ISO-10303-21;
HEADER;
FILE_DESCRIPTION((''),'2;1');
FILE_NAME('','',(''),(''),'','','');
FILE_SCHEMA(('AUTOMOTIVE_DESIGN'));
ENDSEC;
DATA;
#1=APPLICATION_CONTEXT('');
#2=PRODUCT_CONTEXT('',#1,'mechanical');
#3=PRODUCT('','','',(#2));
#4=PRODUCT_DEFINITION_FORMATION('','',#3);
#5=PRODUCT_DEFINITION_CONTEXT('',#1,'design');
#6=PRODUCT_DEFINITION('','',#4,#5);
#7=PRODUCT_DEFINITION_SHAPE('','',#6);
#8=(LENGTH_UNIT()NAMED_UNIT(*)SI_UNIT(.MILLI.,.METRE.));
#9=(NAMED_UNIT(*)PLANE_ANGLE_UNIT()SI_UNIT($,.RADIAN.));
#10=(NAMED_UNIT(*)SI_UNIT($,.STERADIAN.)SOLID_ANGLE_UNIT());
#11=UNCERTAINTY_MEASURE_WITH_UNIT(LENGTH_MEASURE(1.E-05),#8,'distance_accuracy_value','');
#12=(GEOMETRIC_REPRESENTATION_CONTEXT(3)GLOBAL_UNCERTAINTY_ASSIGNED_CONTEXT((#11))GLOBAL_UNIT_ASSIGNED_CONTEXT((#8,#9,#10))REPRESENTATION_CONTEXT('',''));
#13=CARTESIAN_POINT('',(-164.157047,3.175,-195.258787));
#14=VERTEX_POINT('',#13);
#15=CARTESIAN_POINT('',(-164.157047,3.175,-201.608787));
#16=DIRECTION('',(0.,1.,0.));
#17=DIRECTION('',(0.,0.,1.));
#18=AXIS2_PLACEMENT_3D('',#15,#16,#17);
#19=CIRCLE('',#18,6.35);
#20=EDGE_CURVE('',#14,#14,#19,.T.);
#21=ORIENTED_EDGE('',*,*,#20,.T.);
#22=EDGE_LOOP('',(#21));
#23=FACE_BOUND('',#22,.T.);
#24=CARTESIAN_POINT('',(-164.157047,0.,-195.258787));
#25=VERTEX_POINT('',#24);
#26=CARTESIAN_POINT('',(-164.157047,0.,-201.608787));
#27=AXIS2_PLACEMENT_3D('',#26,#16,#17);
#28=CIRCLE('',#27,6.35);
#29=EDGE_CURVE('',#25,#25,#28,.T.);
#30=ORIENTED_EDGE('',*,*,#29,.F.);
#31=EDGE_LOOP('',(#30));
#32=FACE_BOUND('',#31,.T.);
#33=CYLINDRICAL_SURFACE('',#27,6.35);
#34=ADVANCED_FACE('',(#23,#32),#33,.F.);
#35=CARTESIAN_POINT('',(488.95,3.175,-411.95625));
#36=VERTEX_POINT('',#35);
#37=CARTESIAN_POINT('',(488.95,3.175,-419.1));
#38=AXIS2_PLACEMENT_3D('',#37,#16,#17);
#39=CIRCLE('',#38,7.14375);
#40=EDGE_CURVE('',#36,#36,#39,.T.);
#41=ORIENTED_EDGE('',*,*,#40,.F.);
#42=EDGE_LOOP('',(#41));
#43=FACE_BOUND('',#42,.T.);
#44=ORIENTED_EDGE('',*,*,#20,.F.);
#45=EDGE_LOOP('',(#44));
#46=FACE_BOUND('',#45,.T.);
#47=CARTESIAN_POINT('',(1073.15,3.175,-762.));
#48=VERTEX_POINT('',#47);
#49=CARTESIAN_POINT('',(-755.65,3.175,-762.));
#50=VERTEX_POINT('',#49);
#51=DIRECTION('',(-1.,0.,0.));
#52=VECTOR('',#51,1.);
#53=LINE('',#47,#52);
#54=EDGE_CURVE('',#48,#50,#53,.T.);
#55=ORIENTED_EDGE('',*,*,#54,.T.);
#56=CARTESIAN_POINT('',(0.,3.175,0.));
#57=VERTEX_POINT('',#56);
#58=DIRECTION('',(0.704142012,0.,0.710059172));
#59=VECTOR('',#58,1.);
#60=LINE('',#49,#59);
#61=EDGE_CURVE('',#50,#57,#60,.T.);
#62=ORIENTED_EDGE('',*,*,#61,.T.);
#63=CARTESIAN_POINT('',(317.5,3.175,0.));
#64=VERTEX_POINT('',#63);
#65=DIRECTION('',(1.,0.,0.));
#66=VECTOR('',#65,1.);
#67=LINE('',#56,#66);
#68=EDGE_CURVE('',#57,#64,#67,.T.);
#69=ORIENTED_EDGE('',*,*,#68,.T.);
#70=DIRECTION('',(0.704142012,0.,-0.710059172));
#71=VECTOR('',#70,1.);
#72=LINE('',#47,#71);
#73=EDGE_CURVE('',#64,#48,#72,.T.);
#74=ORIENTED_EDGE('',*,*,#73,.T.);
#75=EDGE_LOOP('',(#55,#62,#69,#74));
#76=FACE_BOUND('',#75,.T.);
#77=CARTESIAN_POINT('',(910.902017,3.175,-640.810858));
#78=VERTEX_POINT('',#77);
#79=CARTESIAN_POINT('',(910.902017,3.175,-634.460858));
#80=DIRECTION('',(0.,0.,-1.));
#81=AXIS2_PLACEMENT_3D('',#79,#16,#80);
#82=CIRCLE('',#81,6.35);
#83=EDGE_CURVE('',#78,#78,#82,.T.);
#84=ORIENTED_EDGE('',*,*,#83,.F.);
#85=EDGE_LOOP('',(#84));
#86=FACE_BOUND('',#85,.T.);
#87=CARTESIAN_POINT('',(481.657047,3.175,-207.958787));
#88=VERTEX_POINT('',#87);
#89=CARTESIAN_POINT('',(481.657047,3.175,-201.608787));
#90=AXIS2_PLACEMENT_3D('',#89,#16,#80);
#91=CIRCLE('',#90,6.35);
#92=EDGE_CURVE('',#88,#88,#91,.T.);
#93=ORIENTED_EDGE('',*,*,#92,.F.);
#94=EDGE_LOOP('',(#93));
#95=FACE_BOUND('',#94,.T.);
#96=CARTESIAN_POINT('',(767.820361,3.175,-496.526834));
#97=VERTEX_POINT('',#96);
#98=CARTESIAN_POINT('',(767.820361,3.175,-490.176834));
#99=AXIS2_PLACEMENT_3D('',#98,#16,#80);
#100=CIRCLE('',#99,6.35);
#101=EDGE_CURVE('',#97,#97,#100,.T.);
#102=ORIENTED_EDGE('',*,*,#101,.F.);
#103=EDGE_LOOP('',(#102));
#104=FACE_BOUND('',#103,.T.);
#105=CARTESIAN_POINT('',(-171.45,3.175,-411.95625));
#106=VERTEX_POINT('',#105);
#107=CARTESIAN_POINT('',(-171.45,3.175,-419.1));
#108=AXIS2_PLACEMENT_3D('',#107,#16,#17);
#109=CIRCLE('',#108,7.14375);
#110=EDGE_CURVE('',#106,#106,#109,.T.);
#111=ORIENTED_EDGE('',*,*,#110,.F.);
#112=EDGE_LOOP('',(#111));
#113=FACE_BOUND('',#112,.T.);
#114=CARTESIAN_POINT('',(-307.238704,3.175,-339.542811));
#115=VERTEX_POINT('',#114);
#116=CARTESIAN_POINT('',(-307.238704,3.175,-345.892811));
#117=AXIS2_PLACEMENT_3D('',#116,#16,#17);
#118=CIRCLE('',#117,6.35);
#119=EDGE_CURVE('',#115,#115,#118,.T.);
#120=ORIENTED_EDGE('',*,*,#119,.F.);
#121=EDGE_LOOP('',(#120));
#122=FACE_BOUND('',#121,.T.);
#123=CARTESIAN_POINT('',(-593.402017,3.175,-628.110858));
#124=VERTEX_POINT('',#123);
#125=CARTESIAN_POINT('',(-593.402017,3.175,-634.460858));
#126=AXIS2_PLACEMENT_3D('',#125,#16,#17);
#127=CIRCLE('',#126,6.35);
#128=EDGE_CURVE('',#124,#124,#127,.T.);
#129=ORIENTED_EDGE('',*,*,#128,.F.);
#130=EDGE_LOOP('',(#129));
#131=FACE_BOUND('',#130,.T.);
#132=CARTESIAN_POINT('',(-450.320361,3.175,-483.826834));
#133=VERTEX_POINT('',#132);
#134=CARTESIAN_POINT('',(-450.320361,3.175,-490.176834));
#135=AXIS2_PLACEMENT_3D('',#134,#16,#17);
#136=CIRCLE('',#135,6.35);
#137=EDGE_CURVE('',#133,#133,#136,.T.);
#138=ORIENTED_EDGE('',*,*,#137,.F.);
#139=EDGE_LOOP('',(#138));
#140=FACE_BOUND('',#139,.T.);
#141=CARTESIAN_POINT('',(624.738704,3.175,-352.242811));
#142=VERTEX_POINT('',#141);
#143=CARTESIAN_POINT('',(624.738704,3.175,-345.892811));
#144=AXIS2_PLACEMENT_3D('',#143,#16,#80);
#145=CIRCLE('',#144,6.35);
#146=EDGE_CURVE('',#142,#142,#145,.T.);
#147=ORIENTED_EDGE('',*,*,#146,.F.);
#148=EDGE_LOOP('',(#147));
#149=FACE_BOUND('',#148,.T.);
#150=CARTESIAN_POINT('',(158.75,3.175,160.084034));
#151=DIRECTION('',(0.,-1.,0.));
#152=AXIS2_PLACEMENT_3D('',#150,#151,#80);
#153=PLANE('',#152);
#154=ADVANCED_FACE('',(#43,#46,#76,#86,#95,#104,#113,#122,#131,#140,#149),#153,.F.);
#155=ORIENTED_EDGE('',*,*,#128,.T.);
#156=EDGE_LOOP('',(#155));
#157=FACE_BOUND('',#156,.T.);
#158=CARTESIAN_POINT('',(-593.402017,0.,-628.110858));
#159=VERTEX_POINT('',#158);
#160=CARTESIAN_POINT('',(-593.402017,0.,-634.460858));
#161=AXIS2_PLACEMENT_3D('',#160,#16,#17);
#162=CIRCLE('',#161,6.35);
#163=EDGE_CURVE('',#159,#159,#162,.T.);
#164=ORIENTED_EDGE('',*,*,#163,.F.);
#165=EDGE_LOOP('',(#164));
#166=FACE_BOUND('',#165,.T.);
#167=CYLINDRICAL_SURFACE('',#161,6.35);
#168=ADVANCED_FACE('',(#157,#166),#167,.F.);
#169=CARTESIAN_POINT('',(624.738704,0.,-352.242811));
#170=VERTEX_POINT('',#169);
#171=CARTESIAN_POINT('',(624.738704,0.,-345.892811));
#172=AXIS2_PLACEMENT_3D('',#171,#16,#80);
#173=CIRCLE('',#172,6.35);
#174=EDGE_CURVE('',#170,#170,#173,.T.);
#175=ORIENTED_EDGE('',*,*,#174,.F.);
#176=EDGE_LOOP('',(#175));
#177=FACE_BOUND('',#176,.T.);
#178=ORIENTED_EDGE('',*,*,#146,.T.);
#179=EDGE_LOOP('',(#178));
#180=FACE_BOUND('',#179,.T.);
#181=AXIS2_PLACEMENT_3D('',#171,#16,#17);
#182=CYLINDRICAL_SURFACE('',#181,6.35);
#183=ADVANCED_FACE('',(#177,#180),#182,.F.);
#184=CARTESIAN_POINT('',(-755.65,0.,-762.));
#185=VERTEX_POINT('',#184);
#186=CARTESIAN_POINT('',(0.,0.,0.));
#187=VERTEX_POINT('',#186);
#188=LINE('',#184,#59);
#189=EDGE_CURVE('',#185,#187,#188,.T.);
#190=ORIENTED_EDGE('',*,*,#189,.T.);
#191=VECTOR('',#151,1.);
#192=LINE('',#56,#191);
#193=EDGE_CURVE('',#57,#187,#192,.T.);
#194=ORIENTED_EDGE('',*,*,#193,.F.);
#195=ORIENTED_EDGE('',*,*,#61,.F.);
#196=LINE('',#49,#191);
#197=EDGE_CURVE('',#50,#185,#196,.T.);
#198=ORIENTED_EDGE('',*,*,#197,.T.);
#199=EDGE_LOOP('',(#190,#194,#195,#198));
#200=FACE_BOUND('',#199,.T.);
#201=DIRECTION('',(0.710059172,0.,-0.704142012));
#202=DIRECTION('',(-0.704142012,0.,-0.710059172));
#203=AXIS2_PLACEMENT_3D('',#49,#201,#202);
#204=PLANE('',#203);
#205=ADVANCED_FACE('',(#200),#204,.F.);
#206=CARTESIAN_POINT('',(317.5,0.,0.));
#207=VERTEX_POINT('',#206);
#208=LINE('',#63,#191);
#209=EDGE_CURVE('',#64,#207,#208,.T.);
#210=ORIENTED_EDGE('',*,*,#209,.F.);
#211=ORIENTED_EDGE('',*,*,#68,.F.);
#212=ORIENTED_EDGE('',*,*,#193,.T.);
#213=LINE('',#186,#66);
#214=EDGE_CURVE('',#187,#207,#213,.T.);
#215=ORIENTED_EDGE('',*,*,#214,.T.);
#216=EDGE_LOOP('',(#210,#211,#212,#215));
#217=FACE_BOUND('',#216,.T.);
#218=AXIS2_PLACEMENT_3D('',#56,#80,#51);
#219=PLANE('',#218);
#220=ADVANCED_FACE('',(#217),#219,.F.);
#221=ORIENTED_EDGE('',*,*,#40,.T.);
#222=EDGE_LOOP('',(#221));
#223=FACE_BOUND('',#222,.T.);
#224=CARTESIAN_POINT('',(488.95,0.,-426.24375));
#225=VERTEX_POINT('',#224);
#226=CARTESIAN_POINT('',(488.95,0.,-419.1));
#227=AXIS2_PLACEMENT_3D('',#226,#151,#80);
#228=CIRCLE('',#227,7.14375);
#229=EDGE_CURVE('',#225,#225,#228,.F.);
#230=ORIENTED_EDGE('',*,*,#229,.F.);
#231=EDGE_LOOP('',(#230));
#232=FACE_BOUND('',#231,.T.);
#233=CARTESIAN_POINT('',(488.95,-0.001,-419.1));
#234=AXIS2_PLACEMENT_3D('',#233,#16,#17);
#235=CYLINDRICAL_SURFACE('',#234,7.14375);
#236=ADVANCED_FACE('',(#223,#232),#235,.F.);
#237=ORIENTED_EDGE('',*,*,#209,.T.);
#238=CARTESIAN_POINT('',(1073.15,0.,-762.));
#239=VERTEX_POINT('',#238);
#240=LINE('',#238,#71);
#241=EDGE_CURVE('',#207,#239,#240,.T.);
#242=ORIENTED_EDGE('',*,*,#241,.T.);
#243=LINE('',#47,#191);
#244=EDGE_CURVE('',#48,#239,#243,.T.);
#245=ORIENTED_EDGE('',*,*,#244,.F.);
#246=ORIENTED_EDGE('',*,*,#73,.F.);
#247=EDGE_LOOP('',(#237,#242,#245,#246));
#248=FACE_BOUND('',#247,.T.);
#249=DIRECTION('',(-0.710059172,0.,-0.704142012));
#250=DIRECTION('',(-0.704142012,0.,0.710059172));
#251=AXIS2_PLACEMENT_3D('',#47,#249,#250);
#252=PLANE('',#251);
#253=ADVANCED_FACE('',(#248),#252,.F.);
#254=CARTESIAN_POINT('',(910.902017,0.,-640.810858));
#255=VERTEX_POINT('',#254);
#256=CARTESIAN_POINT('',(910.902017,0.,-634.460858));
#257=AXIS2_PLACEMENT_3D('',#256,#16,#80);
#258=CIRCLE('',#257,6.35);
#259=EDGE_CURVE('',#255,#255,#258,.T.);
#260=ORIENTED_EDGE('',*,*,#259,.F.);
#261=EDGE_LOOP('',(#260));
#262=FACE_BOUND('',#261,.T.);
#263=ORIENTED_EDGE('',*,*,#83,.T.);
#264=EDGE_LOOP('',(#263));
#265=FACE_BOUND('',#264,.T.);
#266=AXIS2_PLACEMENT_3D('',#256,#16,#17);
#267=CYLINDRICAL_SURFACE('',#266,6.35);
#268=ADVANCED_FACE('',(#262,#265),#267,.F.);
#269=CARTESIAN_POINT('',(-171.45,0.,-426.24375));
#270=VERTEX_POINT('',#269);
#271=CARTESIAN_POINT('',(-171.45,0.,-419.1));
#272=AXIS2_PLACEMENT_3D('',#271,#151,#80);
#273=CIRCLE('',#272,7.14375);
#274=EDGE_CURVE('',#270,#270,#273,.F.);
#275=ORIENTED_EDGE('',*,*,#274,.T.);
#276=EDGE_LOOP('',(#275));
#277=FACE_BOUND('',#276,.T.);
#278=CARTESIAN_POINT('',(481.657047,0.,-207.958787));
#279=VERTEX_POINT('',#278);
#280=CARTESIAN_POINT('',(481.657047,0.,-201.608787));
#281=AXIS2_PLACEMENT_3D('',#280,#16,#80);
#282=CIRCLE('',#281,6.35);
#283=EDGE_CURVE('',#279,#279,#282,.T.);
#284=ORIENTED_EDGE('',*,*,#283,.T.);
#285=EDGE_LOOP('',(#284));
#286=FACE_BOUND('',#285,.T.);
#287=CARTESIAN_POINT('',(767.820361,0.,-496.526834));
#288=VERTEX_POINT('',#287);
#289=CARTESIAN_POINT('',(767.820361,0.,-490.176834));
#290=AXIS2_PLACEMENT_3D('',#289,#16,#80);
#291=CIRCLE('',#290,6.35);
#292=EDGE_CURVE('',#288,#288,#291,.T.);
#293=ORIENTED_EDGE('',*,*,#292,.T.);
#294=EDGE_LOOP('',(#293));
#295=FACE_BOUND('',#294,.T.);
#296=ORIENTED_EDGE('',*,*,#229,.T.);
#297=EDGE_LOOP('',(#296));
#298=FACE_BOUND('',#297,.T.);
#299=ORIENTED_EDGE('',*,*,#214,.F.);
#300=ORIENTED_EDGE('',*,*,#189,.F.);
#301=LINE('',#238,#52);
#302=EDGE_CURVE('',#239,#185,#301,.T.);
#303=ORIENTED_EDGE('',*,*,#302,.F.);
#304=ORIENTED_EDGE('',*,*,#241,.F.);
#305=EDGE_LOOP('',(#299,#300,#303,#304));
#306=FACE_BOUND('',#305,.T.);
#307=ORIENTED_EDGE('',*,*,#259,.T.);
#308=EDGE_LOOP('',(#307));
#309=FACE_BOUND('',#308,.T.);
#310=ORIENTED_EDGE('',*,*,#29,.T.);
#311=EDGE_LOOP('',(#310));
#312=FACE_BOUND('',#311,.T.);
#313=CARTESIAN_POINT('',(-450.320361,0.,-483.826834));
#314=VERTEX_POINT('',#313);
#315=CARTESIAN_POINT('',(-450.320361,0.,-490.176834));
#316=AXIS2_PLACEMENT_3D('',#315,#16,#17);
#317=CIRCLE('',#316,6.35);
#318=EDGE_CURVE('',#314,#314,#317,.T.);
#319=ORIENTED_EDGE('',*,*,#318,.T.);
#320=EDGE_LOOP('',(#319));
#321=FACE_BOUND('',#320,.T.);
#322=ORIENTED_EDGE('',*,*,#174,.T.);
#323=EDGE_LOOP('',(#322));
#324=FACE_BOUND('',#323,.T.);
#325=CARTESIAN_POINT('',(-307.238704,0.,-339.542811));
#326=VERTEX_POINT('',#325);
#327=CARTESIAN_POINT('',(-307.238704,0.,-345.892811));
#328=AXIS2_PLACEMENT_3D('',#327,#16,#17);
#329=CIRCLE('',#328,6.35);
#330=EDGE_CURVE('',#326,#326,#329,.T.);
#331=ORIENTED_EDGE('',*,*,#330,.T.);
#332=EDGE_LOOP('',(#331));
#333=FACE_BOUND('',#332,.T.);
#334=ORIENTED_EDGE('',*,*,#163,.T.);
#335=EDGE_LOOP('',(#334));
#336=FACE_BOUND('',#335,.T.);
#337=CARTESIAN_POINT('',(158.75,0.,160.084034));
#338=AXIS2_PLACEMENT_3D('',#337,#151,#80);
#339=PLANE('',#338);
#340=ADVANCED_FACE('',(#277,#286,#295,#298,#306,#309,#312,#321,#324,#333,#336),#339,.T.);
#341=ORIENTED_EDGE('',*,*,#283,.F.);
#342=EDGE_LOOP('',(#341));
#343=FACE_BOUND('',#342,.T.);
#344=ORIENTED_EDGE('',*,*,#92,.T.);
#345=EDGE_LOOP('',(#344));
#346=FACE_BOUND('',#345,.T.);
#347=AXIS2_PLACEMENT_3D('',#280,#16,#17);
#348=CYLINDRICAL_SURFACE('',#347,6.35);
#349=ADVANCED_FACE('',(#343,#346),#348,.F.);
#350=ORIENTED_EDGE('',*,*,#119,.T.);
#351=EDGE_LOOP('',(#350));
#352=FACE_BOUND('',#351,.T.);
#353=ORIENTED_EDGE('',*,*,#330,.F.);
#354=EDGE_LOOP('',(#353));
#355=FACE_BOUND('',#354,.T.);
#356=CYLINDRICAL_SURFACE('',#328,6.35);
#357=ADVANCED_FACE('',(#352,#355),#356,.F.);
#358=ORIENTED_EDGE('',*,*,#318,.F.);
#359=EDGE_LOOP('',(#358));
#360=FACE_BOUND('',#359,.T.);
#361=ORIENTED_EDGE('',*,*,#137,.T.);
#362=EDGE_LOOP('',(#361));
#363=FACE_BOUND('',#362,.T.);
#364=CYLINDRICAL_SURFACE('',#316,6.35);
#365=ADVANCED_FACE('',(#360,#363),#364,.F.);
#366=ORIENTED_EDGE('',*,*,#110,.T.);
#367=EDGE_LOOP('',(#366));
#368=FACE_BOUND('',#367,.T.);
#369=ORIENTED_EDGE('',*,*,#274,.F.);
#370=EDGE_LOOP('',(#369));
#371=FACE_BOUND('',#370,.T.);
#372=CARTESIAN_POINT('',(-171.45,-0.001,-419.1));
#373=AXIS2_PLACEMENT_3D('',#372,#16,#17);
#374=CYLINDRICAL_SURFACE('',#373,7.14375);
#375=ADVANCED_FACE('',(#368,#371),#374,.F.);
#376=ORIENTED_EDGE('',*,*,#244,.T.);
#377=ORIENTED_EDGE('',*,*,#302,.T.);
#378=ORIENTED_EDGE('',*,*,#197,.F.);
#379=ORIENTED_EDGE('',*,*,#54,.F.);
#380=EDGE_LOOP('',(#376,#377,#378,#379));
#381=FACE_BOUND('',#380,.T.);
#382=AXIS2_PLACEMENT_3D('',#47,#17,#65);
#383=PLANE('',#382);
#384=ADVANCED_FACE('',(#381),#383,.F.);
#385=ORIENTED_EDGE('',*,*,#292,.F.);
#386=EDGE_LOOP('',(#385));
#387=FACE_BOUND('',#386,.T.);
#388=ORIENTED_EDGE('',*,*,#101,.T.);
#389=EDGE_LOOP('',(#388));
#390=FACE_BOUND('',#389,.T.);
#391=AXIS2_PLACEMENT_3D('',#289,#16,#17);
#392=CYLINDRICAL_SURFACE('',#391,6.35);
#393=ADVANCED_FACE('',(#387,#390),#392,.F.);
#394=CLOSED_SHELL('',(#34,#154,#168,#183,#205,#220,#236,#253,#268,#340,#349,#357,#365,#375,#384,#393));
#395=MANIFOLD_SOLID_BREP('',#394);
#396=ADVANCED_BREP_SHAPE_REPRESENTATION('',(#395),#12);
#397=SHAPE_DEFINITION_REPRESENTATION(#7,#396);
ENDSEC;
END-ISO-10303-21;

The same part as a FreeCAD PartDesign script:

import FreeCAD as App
import Part
import Sketcher
from FreeCAD import Vector
Q = App.Units.Quantity

doc = App.newDocument("Part")
body = doc.addObject("PartDesign::Body", "Body")

# Sketch on XZ plane
sketch1 = body.newObject("Sketcher::SketchObject", "Sketch")
sketch1.AttachmentSupport = (doc.getObject("XZ_Plane"), [""])
sketch1.MapMode = "FlatFace"
sketch1.addGeometry([
    Part.LineSegment(Vector(0, 0, 0), Vector(317.5, 0, 0)),
    Part.LineSegment(Vector(317.5, 0, 0), Vector(1073.15, -762, 0)),
    Part.LineSegment(Vector(1073.15, -762, 0), Vector(-755.65, -762, 0)),
    Part.LineSegment(Vector(-755.65, -762, 0), Vector(0, 0, 0)),
], False)
sketch1.addConstraint([
    Sketcher.Constraint("Coincident", 0, 2, 1, 1),
    Sketcher.Constraint("Coincident", 1, 2, 2, 1),
    Sketcher.Constraint("Coincident", 2, 2, 3, 1),
    Sketcher.Constraint("Coincident", 3, 2, 0, 1),
    Sketcher.Constraint("Horizontal", 0),
    Sketcher.Constraint("Horizontal", 2),
    Sketcher.Constraint("Coincident", 3, 2, -1, 1),
    Sketcher.Constraint("Equal", 1, 3),
    Sketcher.Constraint("DistanceX", 2, 2, 2, 1, Q("72 in")),
    Sketcher.Constraint("DistanceX", 0, 1, 0, 2, Q("12.5 in")),
    Sketcher.Constraint("DistanceY", 1, 2, -1, 1, Q("30 in")),
])
pad1 = body.newObject("PartDesign::Pad", "Pad")
pad1.Profile = sketch1
pad1.Length = Q("0.125 in")
pad1.Reversed = True

# Sketch on XZ plane
sketch2 = body.newObject("Sketcher::SketchObject", "Sketch001")
sketch2.AttachmentSupport = (doc.getObject("XZ_Plane"), [""])
sketch2.MapMode = "FlatFace"
sketch2.AttachmentOffset = App.Placement(Vector(0, 0, -0.125 * 25.4), App.Rotation())
sketch2.addGeometry(Part.Circle(Vector(-171.45, -419.1, 0), Vector(0, 0, 1), 7.14375), False)
sketch2.addConstraint([
    Sketcher.Constraint("Diameter", 0, Q("0.5625 in")),
    Sketcher.Constraint("DistanceY", 0, 3, -1, 1, Q("16.5 in")),
    Sketcher.Constraint("DistanceX", 0, 3, -1, 1, Q("6.75 in")),
])
pocket1 = body.newObject("PartDesign::Pocket", "Pocket")
pocket1.Profile = sketch2
pocket1.Type = "UpToFirst"
pocket1.Reversed = True

# Sketch on XZ plane
sketch3 = body.newObject("Sketcher::SketchObject", "Sketch002")
sketch3.AttachmentSupport = (doc.getObject("XZ_Plane"), [""])
sketch3.MapMode = "FlatFace"
sketch3.AttachmentOffset = App.Placement(Vector(0, 0, -0.125 * 25.4), App.Rotation())
sketch3.addGeometry(Part.Circle(Vector(488.95, -419.1, 0), Vector(0, 0, 1), 7.14375), False)
sketch3.addConstraint([
    Sketcher.Constraint("Diameter", 0, Q("0.5625 in")),
    Sketcher.Constraint("DistanceY", 0, 3, -1, 1, Q("16.5 in")),
    Sketcher.Constraint("DistanceX", -1, 1, 0, 3, Q("19.25 in")),
])
pocket2 = body.newObject("PartDesign::Pocket", "Pocket001")
pocket2.Profile = sketch3
pocket2.Type = "UpToFirst"
pocket2.Reversed = True

# Sketch on XZ plane
sketch4 = body.newObject("Sketcher::SketchObject", "Sketch003")
sketch4.AttachmentSupport = (doc.getObject("XZ_Plane"), [""])
sketch4.MapMode = "FlatFace"
sketch4.AttachmentOffset = App.Placement(Vector(0, 0, -0.125 * 25.4), App.Rotation())
sketch4.addGeometry([
    Part.Circle(Vector(-593.402017, -634.460858, 0), Vector(0, 0, 1), 6.35),  # 0
    Part.Circle(Vector(-450.320361, -490.176834, 0), Vector(0, 0, 1), 6.35),  # 1
    Part.Circle(Vector(-307.238704, -345.892811, 0), Vector(0, 0, 1), 6.35),  # 2
    Part.Circle(Vector(-164.157047, -201.608787, 0), Vector(0, 0, 1), 6.35),  # 3
    Part.Circle(Vector(481.657047, -201.608787, 0), Vector(0, 0, 1), 6.35),  # 4
    Part.Circle(Vector(624.738704, -345.892811, 0), Vector(0, 0, 1), 6.35),  # 5
    Part.Circle(Vector(767.820361, -490.176834, 0), Vector(0, 0, 1), 6.35),  # 6
    Part.Circle(Vector(910.902017, -634.460858, 0), Vector(0, 0, 1), 6.35),  # 7
], False)
sketch4.addConstraint([
    Sketcher.Constraint("Equal", 0, 1),
    Sketcher.Constraint("Equal", 1, 2),
    Sketcher.Constraint("Equal", 2, 3),
    Sketcher.Constraint("Equal", 3, 4),
    Sketcher.Constraint("Equal", 4, 5),
    Sketcher.Constraint("Equal", 5, 6),
    Sketcher.Constraint("Equal", 6, 7),
    Sketcher.Constraint("Horizontal", 3, 3, 4, 3),
    Sketcher.Constraint("Horizontal", 2, 3, 5, 3),
    Sketcher.Constraint("Horizontal", 1, 3, 6, 3),
    Sketcher.Constraint("Horizontal", 0, 3, 7, 3),
    Sketcher.Constraint("Diameter", 0, Q("0.5 in")),
    Sketcher.Constraint("DistanceX", 1, 3, -1, 1, Q("450.320361 mm")),
    Sketcher.Constraint("DistanceY", 2, 3, -1, 1, Q("345.892811 mm")),
    Sketcher.Constraint("DistanceX", -1, 1, 6, 3, Q("767.820361 mm")),
    Sketcher.Constraint("DistanceX", 0, 3, 3, 3, Q("429.24497 mm")),
    Sketcher.Constraint("DistanceY", 0, 3, 3, 3, Q("432.852071 mm")),
    Sketcher.Constraint("DistanceX", 2, 3, 4, 3, Q("788.895751 mm")),
    Sketcher.Constraint("DistanceX", 3, 3, 5, 3, Q("788.895751 mm")),
    Sketcher.Constraint("DistanceX", 4, 3, 7, 3, Q("429.24497 mm")),
    Sketcher.Constraint("DistanceX", 0, 3, -1, 1, Q("593.402017 mm")),
    Sketcher.Constraint("DistanceY", 0, 3, -1, 1, Q("634.460858 mm")),
    Sketcher.Constraint("DistanceY", 1, 3, -1, 1, Q("490.176834 mm")),
    Sketcher.Constraint("DistanceX", 2, 3, -1, 1, Q("307.238704 mm")),
])
pocket3 = body.newObject("PartDesign::Pocket", "Pocket002")
pocket3.Profile = sketch4
pocket3.Type = "ThroughAll"
pocket3.Reversed = True

doc.recompute()
